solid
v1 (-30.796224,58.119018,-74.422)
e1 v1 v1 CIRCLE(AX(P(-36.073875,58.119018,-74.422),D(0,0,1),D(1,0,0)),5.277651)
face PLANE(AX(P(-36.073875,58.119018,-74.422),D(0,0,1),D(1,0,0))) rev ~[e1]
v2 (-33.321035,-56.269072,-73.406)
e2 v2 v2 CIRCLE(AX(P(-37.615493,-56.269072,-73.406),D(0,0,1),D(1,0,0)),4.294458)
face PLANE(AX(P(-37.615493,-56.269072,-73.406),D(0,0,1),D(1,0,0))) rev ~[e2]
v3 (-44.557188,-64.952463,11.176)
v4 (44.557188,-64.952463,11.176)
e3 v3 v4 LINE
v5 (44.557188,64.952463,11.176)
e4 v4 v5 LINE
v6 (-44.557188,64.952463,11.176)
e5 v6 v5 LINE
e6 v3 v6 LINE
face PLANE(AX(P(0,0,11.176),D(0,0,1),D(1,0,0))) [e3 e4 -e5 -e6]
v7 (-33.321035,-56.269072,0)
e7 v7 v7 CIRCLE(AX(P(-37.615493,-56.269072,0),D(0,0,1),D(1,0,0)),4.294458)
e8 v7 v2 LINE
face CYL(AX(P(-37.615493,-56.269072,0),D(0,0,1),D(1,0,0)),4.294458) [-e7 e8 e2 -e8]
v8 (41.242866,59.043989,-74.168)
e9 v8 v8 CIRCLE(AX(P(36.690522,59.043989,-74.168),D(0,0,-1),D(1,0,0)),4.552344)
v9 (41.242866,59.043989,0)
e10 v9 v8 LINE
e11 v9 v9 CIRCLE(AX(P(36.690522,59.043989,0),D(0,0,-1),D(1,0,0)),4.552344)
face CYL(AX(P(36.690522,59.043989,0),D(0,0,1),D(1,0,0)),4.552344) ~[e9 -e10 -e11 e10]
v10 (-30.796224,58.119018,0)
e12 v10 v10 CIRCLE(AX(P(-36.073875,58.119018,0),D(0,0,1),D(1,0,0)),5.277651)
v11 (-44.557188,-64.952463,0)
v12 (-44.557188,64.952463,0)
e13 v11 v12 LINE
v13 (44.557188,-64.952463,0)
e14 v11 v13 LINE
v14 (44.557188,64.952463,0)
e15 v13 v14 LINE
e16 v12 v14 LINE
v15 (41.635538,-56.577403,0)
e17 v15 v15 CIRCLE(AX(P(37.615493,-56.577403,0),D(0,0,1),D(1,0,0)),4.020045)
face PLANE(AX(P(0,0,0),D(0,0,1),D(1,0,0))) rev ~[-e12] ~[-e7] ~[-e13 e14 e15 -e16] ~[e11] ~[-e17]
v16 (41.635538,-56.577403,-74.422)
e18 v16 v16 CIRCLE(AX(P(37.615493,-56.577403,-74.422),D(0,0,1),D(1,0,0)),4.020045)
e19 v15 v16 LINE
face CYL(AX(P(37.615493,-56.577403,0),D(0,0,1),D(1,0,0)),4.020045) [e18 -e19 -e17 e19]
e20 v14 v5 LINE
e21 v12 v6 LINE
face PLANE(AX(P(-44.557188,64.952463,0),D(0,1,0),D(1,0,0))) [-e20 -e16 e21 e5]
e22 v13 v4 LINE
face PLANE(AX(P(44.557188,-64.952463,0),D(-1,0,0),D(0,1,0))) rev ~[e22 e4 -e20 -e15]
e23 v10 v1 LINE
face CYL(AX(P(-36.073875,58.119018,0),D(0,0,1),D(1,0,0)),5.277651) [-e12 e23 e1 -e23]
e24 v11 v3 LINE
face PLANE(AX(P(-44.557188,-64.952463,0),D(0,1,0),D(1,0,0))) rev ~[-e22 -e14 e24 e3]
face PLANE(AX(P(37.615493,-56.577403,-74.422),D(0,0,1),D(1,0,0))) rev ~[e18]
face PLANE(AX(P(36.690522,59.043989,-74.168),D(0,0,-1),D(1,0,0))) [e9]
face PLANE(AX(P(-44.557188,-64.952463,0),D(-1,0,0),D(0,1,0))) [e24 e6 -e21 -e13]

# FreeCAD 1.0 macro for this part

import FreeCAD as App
import Part
import Sketcher

V = App.Vector
Q = App.Units.Quantity

doc = App.newDocument("Part")
body = doc.addObject("PartDesign::Body", "Body")

sketch1 = doc.addObject("Sketcher::SketchObject", "Sketch")
body.addObject(sketch1)
sketch1.AttachmentSupport = (doc.XY_Plane, [""])
sketch1.MapMode = "FlatFace"
sketch1.addGeometry([
    Part.LineSegment(V(-44.557188, 64.952463, 0), V(-44.557188, -64.952463, 0)),
    Part.LineSegment(V(-44.557188, -64.952463, 0), V(44.557188, -64.952463, 0)),
    Part.LineSegment(V(44.557188, -64.952463, 0), V(44.557188, 64.952463, 0)),
    Part.LineSegment(V(44.557188, 64.952463, 0), V(-44.557188, 64.952463, 0)),
], False)
sketch1.addConstraint([
    Sketcher.Constraint("Coincident", 0, 2, 1, 1),
    Sketcher.Constraint("Coincident", 1, 2, 2, 1),
    Sketcher.Constraint("Coincident", 2, 2, 3, 1),
    Sketcher.Constraint("Coincident", 3, 2, 0, 1),
    Sketcher.Constraint("Vertical", 0),
    Sketcher.Constraint("Horizontal", 1),
    Sketcher.Constraint("Vertical", 2),
    Sketcher.Constraint("Horizontal", 3),
    Sketcher.Constraint("Symmetric", 0, 2, 2, 2, -1, 1),
    Sketcher.Constraint("DistanceX", 1, 1, 1, 2, 89.114376),
    Sketcher.Constraint("DistanceY", 0, 2, 0, 1, 129.904926),
])
pad1 = doc.addObject("PartDesign::Pad", "Pad")
body.addObject(pad1)
pad1.Profile = sketch1
pad1.Length = Q("0.44 in")

sketch2 = doc.addObject("Sketcher::SketchObject", "Sketch001")
body.addObject(sketch2)
sketch2.AttachmentSupport = (doc.XY_Plane, [""])
sketch2.MapMode = "FlatFace"
sketch2.addGeometry(Part.Circle(V(-36.073875, 58.119018, 0), V(0, 0, 1), 5.277651), False)
sketch2.addConstraint([
    Sketcher.Constraint("Diameter", 0, 10.555302),
    Sketcher.Constraint("DistanceX", 0, 3, -1, 1, 36.073875),
    Sketcher.Constraint("DistanceY", -1, 1, 0, 3, 58.119018),
])
pad2 = doc.addObject("PartDesign::Pad", "Pad001")
body.addObject(pad2)
pad2.Profile = sketch2
pad2.Length = Q("2.93 in")
pad2.Reversed = True

sketch3 = doc.addObject("Sketcher::SketchObject", "Sketch002")
body.addObject(sketch3)
sketch3.AttachmentSupport = (doc.XY_Plane, [""])
sketch3.MapMode = "FlatFace"
sketch3.addGeometry(Part.Circle(V(36.690522, 59.043989, 0), V(0, 0, 1), 4.552344), False)
sketch3.addConstraint([
    Sketcher.Constraint("Diameter", 0, 9.104688),
    Sketcher.Constraint("DistanceY", -1, 1, 0, 3, 59.043989),
    Sketcher.Constraint("DistanceX", -1, 1, 0, 3, 36.690522),
])
pad3 = doc.addObject("PartDesign::Pad", "Pad002")
body.addObject(pad3)
pad3.Profile = sketch3
pad3.Length = Q("2.92 in")
pad3.Reversed = True

sketch4 = doc.addObject("Sketcher::SketchObject", "Sketch003")
body.addObject(sketch4)
sketch4.AttachmentSupport = (doc.XY_Plane, [""])
sketch4.MapMode = "FlatFace"
sketch4.addGeometry(Part.Circle(V(-37.615493, -56.269072, 0), V(0, 0, 1), 4.294458), False)
sketch4.addConstraint([
    Sketcher.Constraint("Diameter", 0, 8.588916),
    Sketcher.Constraint("DistanceX", 0, 3, -1, 1, 37.615493),
    Sketcher.Constraint("DistanceY", 0, 3, -1, 1, 56.269072),
])
pad4 = doc.addObject("PartDesign::Pad", "Pad003")
body.addObject(pad4)
pad4.Profile = sketch4
pad4.Length = Q("2.89 in")
pad4.Reversed = True

sketch5 = doc.addObject("Sketcher::SketchObject", "Sketch004")
body.addObject(sketch5)
sketch5.AttachmentSupport = (doc.XY_Plane, [""])
sketch5.MapMode = "FlatFace"
sketch5.addGeometry(Part.Circle(V(37.615493, -56.577403, 0), V(0, 0, 1), 4.020045), False)
sketch5.addConstraint([
    Sketcher.Constraint("Diameter", 0, 8.04009),
    Sketcher.Constraint("DistanceX", -1, 1, 0, 3, 37.615493),
    Sketcher.Constraint("DistanceY", 0, 3, -1, 1, 56.577403),
])
pad5 = doc.addObject("PartDesign::Pad", "Pad004")
body.addObject(pad5)
pad5.Profile = sketch5
pad5.Length = Q("2.93 in")
pad5.Reversed = True

doc.recompute()
